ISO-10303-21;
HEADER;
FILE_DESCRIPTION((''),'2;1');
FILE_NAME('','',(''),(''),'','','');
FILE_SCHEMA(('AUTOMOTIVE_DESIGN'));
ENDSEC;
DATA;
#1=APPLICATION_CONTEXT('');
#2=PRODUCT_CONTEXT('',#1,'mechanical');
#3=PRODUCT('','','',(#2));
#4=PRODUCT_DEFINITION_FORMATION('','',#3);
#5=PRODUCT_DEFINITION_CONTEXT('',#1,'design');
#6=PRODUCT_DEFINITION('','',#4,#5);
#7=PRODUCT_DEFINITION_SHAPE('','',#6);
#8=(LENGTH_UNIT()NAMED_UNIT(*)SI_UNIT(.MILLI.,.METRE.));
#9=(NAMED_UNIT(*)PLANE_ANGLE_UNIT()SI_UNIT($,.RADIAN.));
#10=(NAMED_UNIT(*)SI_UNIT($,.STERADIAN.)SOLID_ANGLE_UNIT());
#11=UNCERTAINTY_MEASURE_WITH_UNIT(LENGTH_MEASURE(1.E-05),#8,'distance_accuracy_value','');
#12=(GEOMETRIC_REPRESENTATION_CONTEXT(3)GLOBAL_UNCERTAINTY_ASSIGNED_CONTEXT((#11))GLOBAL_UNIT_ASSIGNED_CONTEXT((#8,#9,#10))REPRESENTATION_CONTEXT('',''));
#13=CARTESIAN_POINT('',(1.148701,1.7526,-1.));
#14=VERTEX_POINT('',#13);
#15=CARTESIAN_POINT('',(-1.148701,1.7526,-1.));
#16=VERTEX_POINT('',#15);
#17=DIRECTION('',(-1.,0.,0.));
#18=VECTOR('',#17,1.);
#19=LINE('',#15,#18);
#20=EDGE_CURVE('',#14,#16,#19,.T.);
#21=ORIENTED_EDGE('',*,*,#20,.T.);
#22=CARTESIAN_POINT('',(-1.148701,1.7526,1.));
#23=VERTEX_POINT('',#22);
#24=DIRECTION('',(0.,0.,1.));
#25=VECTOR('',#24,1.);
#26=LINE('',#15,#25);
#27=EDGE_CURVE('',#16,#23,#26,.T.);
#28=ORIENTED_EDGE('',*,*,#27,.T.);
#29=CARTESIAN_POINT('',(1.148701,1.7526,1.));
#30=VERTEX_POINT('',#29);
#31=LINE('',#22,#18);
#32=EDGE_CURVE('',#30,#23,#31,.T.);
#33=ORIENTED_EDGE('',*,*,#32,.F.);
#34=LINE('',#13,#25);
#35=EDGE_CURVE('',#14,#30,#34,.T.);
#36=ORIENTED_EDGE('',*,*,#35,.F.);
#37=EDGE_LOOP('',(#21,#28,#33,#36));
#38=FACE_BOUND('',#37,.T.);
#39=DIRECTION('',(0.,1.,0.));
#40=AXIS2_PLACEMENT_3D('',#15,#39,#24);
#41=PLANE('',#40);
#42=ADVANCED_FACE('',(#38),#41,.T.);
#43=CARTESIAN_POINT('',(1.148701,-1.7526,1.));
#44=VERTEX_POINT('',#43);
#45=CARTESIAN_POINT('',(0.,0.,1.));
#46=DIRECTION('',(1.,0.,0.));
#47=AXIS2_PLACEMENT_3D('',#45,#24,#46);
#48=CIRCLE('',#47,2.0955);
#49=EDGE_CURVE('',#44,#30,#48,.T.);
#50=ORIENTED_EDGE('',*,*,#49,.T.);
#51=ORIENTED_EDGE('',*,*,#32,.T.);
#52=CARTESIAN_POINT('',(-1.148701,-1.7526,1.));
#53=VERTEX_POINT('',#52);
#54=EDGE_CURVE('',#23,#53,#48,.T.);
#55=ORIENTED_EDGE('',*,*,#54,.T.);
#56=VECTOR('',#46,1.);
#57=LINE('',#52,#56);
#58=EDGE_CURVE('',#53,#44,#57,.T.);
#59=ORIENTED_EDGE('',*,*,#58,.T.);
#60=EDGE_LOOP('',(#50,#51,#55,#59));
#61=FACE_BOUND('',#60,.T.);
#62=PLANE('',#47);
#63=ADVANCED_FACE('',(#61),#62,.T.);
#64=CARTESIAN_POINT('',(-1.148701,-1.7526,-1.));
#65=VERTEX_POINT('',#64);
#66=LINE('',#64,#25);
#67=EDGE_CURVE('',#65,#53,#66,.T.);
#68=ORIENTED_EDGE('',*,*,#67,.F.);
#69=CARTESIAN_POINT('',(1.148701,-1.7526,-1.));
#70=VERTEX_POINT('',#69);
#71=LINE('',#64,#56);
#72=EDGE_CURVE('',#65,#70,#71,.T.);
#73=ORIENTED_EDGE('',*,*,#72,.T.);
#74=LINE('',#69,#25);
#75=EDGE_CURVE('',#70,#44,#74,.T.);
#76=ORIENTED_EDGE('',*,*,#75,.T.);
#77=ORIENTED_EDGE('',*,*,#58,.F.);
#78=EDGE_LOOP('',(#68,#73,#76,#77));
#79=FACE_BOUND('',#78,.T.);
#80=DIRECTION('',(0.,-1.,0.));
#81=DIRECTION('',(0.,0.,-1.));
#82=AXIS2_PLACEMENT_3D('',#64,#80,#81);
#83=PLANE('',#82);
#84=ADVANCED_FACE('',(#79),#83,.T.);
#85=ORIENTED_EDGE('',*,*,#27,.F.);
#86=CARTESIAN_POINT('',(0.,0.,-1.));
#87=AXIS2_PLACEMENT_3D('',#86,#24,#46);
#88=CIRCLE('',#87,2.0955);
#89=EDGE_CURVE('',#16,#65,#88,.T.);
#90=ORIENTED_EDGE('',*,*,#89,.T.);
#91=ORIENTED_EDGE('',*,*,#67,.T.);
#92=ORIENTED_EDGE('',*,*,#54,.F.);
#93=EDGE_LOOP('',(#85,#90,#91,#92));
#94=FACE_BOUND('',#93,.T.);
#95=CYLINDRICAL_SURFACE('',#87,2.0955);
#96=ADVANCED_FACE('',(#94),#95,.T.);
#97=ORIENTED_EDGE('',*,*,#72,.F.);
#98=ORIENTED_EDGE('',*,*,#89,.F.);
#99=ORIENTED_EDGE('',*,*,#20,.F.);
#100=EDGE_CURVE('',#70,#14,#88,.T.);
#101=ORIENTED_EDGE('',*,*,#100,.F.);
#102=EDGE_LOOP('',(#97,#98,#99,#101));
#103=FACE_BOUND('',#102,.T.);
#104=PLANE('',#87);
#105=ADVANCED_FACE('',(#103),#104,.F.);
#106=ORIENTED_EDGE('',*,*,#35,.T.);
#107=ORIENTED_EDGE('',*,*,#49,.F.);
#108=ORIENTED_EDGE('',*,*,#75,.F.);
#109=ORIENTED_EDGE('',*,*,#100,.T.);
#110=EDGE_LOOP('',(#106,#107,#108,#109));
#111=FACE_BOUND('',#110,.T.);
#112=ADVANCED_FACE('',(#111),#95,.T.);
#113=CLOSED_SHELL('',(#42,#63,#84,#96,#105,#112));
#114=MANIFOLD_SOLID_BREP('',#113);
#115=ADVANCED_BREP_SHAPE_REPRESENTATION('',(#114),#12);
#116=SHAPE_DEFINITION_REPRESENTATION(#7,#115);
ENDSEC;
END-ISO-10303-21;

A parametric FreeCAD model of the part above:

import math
import FreeCAD as App
import Part
import Sketcher
from FreeCAD import Vector
Q = App.Units.Quantity

doc = App.newDocument("Part")
params = doc.addObject("Spreadsheet::Sheet", "Params")
for row, (alias, value) in enumerate([
    ("pad1_length", "1 mm"),
    ("pad1_length2", "1 mm"),
], start=1):
    params.set(f"A{row}", alias)
    params.set(f"B{row}", "=" + value)
    params.setAlias(f"B{row}", alias)

body = doc.addObject("PartDesign::Body", "Body")

# Sketch on XY plane
sketch1 = body.newObject("Sketcher::SketchObject", "Sketch")
sketch1.AttachmentSupport = (doc.getObject("XY_Plane"), [""])
sketch1.MapMode = "FlatFace"
sketch1.addGeometry(Part.LineSegment(Vector(1.1, 1.8, 0), Vector(-1.1, 1.8, 0)), False)
sketch1.addGeometry(Part.ArcOfCircle(Part.Circle(Vector(0, 0, 0), Vector(0, 0, 1), 2.1), math.radians(123), math.radians(237)), False)
sketch1.addGeometry(Part.LineSegment(Vector(-1.1, -1.8, 0), Vector(1.1, -1.8, 0)), False)
sketch1.addGeometry(Part.ArcOfCircle(Part.Circle(Vector(0, 0, 0), Vector(0, 0, 1), 2.1), math.radians(-57), math.radians(57)), False)
sketch1.addConstraint(Sketcher.Constraint("Coincident", 0, 2, 1, 1))
sketch1.addConstraint(Sketcher.Constraint("Coincident", 1, 2, 2, 1))
sketch1.addConstraint(Sketcher.Constraint("Coincident", 2, 2, 3, 1))
sketch1.addConstraint(Sketcher.Constraint("Coincident", 3, 2, 0, 1))
sketch1.addConstraint(Sketcher.Constraint("Horizontal", 0))
sketch1.addConstraint(Sketcher.Constraint("Horizontal", 2))
sketch1.addConstraint(Sketcher.Constraint("Coincident", 1, 3, -1, 1))
sketch1.addConstraint(Sketcher.Constraint("Coincident", 3, 3, -1, 1))
sketch1.addConstraint(Sketcher.Constraint("Equal", 1, 3))
sketch1.addConstraint(Sketcher.Constraint("Vertical", 0, 2, 1, 2))
sketch1.addConstraint(Sketcher.Constraint("Radius", 1, Q("2.0955 mm")))
sketch1.addConstraint(Sketcher.Constraint("DistanceX", 0, 2, 0, 1, Q("2.297402 mm")))
pad1 = body.newObject("PartDesign::Pad", "Pad")
pad1.Profile = sketch1
pad1.Type = "TwoLengths"
pad1.setExpression("Length", "Params.pad1_length")
pad1.setExpression("Length2", "Params.pad1_length2")

doc.recompute()
